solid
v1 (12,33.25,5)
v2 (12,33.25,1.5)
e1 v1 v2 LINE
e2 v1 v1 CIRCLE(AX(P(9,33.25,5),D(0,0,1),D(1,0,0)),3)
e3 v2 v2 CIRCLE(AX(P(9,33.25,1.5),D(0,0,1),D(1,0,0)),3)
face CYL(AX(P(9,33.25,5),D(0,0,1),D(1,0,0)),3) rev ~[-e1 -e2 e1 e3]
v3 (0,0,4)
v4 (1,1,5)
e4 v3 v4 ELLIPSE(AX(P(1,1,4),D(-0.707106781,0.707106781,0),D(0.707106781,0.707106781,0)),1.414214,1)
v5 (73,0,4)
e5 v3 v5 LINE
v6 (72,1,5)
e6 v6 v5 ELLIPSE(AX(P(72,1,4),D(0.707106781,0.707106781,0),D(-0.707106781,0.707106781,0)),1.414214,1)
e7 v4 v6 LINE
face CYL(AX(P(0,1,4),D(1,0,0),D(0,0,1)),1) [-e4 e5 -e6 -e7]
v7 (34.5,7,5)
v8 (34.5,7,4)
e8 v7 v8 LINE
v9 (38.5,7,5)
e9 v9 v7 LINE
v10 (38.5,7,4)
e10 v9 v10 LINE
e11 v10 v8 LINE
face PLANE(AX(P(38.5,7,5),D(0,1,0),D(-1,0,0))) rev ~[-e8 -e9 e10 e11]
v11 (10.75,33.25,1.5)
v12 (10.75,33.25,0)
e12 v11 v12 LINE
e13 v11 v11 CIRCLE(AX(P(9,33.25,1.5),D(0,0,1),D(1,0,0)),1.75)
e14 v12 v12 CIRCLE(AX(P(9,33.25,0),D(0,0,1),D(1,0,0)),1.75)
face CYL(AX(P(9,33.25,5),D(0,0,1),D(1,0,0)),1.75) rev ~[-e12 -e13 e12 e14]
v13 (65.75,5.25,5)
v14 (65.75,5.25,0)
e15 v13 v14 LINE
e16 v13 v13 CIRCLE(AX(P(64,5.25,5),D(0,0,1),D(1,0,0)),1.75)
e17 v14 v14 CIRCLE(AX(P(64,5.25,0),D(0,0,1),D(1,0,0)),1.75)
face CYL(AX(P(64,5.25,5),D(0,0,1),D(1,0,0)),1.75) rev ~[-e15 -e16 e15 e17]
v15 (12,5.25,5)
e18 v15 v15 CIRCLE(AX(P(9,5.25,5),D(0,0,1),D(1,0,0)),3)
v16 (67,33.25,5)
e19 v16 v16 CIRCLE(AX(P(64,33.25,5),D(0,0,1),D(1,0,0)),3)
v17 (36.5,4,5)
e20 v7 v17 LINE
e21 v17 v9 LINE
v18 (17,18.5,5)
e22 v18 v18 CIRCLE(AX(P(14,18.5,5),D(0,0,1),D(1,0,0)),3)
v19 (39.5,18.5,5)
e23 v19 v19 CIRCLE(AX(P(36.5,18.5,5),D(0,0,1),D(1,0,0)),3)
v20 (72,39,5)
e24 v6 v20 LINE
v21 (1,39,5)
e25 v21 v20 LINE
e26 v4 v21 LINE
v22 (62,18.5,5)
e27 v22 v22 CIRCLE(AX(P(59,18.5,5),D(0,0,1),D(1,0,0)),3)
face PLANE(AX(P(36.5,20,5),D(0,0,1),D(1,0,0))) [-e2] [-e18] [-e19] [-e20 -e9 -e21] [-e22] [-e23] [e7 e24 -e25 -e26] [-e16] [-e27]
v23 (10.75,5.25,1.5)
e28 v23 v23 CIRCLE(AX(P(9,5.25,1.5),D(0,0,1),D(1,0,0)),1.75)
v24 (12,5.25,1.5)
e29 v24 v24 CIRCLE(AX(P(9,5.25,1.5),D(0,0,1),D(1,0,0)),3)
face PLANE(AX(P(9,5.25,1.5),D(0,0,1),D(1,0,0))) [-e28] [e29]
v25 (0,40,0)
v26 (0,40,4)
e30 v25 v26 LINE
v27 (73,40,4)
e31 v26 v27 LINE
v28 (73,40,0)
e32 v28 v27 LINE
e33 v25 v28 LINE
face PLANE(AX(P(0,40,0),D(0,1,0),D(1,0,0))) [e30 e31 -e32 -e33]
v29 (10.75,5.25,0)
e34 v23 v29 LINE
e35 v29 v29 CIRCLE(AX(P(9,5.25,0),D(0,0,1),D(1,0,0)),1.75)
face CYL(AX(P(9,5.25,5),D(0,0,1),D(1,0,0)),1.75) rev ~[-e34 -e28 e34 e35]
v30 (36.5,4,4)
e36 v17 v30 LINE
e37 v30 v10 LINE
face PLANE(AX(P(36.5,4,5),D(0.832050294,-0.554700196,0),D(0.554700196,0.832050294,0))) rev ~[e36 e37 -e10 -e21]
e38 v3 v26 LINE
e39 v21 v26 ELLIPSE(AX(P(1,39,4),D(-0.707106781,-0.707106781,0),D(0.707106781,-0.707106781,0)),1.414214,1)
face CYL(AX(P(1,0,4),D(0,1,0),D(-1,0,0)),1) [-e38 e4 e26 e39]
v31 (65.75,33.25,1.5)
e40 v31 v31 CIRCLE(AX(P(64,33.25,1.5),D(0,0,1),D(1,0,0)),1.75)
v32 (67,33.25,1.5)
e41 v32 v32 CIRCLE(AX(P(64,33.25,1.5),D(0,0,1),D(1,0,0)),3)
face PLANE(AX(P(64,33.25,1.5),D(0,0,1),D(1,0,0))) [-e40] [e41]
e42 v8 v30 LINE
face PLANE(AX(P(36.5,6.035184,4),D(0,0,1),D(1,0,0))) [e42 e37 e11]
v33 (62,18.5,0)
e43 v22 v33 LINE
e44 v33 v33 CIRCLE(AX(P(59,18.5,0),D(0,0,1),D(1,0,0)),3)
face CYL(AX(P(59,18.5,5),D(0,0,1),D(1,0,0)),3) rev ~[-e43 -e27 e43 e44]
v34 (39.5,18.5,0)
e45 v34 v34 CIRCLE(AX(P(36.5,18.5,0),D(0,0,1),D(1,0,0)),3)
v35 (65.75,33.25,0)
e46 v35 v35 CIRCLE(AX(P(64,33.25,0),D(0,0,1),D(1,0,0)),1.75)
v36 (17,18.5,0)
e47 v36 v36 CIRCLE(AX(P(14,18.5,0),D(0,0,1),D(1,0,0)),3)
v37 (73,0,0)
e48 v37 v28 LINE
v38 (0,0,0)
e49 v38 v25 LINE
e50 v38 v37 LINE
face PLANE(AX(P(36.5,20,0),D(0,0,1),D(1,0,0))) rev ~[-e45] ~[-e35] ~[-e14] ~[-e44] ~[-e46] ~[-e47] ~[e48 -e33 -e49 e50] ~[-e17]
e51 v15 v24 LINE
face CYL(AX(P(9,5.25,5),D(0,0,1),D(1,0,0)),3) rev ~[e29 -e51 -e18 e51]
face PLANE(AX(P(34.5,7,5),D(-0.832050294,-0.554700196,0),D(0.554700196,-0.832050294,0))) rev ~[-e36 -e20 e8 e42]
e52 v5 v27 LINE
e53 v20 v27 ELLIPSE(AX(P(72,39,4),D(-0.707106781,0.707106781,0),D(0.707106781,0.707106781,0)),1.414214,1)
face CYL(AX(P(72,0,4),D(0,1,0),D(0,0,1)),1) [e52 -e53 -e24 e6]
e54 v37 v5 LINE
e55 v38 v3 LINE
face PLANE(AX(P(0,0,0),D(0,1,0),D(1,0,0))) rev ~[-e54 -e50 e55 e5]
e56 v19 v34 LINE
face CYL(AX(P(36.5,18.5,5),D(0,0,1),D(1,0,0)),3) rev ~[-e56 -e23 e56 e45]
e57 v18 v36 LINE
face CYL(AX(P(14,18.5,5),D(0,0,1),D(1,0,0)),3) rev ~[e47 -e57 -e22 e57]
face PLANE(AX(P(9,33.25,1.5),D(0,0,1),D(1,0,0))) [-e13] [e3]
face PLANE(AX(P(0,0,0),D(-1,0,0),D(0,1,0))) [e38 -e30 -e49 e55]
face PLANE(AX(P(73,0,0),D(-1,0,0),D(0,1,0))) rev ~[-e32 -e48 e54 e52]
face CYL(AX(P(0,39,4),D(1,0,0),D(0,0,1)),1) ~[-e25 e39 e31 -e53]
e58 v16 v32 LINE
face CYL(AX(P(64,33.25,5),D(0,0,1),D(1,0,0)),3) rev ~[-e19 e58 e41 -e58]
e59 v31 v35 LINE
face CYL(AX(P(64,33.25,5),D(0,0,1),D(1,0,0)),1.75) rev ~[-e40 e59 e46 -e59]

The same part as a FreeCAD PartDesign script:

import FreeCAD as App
import Part
import Sketcher
from FreeCAD import Vector
Q = App.Units.Quantity


def edges_at(feature, points):
    """Names of the edges that pass closest to the given points."""
    edges = feature.Shape.Edges
    near = lambda p: min(range(len(edges)), key=lambda i: edges[i].distToShape(Part.Vertex(*p))[0])
    return sorted({f"Edge{near(p) + 1}" for p in points})


def add_polygon(sketch, points):
    """Adds a closed chain of lines whose ends are joined by coincident constraints."""
    first, n = sketch.GeometryCount, len(points)
    for a, b in zip(points, points[1:] + points[:1]):
        sketch.addGeometry(Part.LineSegment(App.Vector(*a, 0), App.Vector(*b, 0)), False)
    for i in range(n):
        sketch.addConstraint(Sketcher.Constraint("Coincident", first + i, 2, first + (i + 1) % n, 1))

doc = App.newDocument("Part")
body = doc.addObject("PartDesign::Body", "Body")

sketch1 = body.newObject("Sketcher::SketchObject", "Sketch")
sketch1.AttachmentSupport = (doc.getObject("XY_Plane"), [""])
sketch1.MapMode = "FlatFace"
add_polygon(sketch1, [(0, 40), (0, 0), (73, 0), (73, 40)])
sketch1.addConstraint([
    Sketcher.Constraint("Vertical", 0),
    Sketcher.Constraint("Horizontal", 1),
    Sketcher.Constraint("Vertical", 2),
    Sketcher.Constraint("Horizontal", 3),
    Sketcher.Constraint("Coincident", 0, 2, -1, 1),
    Sketcher.Constraint("DistanceX", 1, 1, 1, 2, Q("73 mm")),
    Sketcher.Constraint("DistanceY", 0, 2, 0, 1, Q("40 mm")),
])
pad1 = body.newObject("PartDesign::Pad", "Pad")
pad1.Profile = sketch1
pad1.Length = 5

sketch2 = body.newObject("Sketcher::SketchObject", "Sketch001")
sketch2.AttachmentSupport = (doc.getObject("XY_Plane"), [""])
sketch2.MapMode = "FlatFace"
sketch2.AttachmentOffset = App.Placement(Vector(0, 0, 5), App.Rotation())
sketch2.addGeometry([
    Part.Circle(Vector(14, 18.5, 0), Vector(0, 0, 1), 3),
    Part.Circle(Vector(59, 18.5, 0), Vector(0, 0, 1), 3),
    Part.Circle(Vector(36.5, 18.5, 0), Vector(0, 0, 1), 3),
    Part.Circle(Vector(9, 33.2, 0), Vector(0, 0, 1), 1.8),
    Part.Circle(Vector(64, 33.2, 0), Vector(0, 0, 1), 1.8),
    Part.Circle(Vector(64, 5.2, 0), Vector(0, 0, 1), 1.8),
    Part.Circle(Vector(9, 5.2, 0), Vector(0, 0, 1), 1.8),
], False)
sketch2.addConstraint([
    Sketcher.Constraint("Equal", 0, 1),
    Sketcher.Constraint("Equal", 1, 2),
    Sketcher.Constraint("Equal", 3, 4),
    Sketcher.Constraint("Equal", 4, 5),
    Sketcher.Constraint("Equal", 5, 6),
    Sketcher.Constraint("Horizontal", 0, 3, 1, 3),
    Sketcher.Constraint("Horizontal", 1, 3, 2, 3),
    Sketcher.Constraint("Horizontal", 3, 3, 4, 3),
    Sketcher.Constraint("Horizontal", 5, 3, 6, 3),
    Sketcher.Constraint("Vertical", 4, 3, 5, 3),
    Sketcher.Constraint("Vertical", 3, 3, 6, 3),
    Sketcher.Constraint("Diameter", 0, Q("6 mm")),
    Sketcher.Constraint("Diameter", 3, Q("3.5 mm")),
    Sketcher.Constraint("DistanceX", -1, 1, 0, 3, Q("14 mm")),
    Sketcher.Constraint("DistanceX", -1, 1, 1, 3, Q("59 mm")),
    Sketcher.Constraint("DistanceX", -1, 1, 3, 3, Q("9 mm")),
    Sketcher.Constraint("DistanceX", -1, 1, 4, 3, Q("64 mm")),
    Sketcher.Constraint("DistanceY", 5, 3, 4, 3, Q("28 mm")),
    Sketcher.Constraint("DistanceY", -1, 1, 0, 3, Q("18.5 mm")),
    Sketcher.Constraint("DistanceX", -1, 1, 2, 3, Q("36.5 mm")),
    Sketcher.Constraint("DistanceY", -1, 1, 3, 3, Q("33.25 mm")),
])
pocket1 = body.newObject("PartDesign::Pocket", "Pocket")
pocket1.Profile = sketch2
pocket1.Length = 5

sketch3 = body.newObject("Sketcher::SketchObject", "Sketch002")
sketch3.AttachmentSupport = (doc.getObject("XY_Plane"), [""])
sketch3.MapMode = "FlatFace"
sketch3.AttachmentOffset = App.Placement(Vector(0, 0, 5), App.Rotation())
sketch3.addGeometry([
    Part.Circle(Vector(36.5, 18.5, 0), Vector(0, 0, 1), 3),
    Part.Circle(Vector(9, 5.2, 0), Vector(0, 0, 1), 3),
    Part.Circle(Vector(64, 33.2, 0), Vector(0, 0, 1), 3),
    Part.Circle(Vector(9, 33.2, 0), Vector(0, 0, 1), 3),
], False)
sketch3.addConstraint([
    Sketcher.Constraint("Equal", 0, 1),
    Sketcher.Constraint("Equal", 1, 2),
    Sketcher.Constraint("Equal", 2, 3),
    Sketcher.Constraint("Horizontal", 2, 3, 3, 3),
    Sketcher.Constraint("Vertical", 1, 3, 3, 3),
    Sketcher.Constraint("Diameter", 0, Q("6 mm")),
    Sketcher.Constraint("DistanceX", -1, 1, 1, 3, Q("9 mm")),
    Sketcher.Constraint("DistanceX", -1, 1, 2, 3, Q("64 mm")),
    Sketcher.Constraint("DistanceY", 1, 3, 2, 3, Q("28 mm")),
    Sketcher.Constraint("DistanceX", -1, 1, 0, 3, Q("36.5 mm")),
    Sketcher.Constraint("DistanceY", -1, 1, 0, 3, Q("18.5 mm")),
    Sketcher.Constraint("DistanceY", -1, 1, 1, 3, Q("5.25 mm")),
])
pocket2 = body.newObject("PartDesign::Pocket", "Pocket001")
pocket2.Profile = sketch3
pocket2.Length = 3.5
doc.recompute()

fillet = body.newObject("PartDesign::Fillet", "Fillet")
fillet.Base = (pocket2, edges_at(pocket2, [
    (73, 20, 5),
    (36.5, 40, 5),
    (0, 20, 5),
    (36.5, 0, 5),
]))
fillet.Radius = 1

sketch4 = body.newObject("Sketcher::SketchObject", "Sketch003")
sketch4.AttachmentSupport = (doc.getObject("XY_Plane"), [""])
sketch4.MapMode = "FlatFace"
sketch4.AttachmentOffset = App.Placement(Vector(0, 0, 5), App.Rotation())
add_polygon(sketch4, [(36.5, 4), (38.5, 7), (34.5, 7)])
sketch4.addConstraint([
    Sketcher.Constraint("Horizontal", 1),
    Sketcher.Constraint("Equal", 0, 2),
    Sketcher.Constraint("DistanceX", 1, 2, 1, 1, Q("4 mm")),
    Sketcher.Constraint("DistanceY", -1, 1, 0, 2, Q("7 mm")),
    Sketcher.Constraint("DistanceY", -1, 1, 2, 2, Q("4 mm")),
    Sketcher.Constraint("DistanceX", -1, 1, 0, 2, Q("38.5 mm")),
])
pocket3 = body.newObject("PartDesign::Pocket", "Pocket002")
pocket3.Profile = sketch4
pocket3.Length = 1

doc.recompute()
